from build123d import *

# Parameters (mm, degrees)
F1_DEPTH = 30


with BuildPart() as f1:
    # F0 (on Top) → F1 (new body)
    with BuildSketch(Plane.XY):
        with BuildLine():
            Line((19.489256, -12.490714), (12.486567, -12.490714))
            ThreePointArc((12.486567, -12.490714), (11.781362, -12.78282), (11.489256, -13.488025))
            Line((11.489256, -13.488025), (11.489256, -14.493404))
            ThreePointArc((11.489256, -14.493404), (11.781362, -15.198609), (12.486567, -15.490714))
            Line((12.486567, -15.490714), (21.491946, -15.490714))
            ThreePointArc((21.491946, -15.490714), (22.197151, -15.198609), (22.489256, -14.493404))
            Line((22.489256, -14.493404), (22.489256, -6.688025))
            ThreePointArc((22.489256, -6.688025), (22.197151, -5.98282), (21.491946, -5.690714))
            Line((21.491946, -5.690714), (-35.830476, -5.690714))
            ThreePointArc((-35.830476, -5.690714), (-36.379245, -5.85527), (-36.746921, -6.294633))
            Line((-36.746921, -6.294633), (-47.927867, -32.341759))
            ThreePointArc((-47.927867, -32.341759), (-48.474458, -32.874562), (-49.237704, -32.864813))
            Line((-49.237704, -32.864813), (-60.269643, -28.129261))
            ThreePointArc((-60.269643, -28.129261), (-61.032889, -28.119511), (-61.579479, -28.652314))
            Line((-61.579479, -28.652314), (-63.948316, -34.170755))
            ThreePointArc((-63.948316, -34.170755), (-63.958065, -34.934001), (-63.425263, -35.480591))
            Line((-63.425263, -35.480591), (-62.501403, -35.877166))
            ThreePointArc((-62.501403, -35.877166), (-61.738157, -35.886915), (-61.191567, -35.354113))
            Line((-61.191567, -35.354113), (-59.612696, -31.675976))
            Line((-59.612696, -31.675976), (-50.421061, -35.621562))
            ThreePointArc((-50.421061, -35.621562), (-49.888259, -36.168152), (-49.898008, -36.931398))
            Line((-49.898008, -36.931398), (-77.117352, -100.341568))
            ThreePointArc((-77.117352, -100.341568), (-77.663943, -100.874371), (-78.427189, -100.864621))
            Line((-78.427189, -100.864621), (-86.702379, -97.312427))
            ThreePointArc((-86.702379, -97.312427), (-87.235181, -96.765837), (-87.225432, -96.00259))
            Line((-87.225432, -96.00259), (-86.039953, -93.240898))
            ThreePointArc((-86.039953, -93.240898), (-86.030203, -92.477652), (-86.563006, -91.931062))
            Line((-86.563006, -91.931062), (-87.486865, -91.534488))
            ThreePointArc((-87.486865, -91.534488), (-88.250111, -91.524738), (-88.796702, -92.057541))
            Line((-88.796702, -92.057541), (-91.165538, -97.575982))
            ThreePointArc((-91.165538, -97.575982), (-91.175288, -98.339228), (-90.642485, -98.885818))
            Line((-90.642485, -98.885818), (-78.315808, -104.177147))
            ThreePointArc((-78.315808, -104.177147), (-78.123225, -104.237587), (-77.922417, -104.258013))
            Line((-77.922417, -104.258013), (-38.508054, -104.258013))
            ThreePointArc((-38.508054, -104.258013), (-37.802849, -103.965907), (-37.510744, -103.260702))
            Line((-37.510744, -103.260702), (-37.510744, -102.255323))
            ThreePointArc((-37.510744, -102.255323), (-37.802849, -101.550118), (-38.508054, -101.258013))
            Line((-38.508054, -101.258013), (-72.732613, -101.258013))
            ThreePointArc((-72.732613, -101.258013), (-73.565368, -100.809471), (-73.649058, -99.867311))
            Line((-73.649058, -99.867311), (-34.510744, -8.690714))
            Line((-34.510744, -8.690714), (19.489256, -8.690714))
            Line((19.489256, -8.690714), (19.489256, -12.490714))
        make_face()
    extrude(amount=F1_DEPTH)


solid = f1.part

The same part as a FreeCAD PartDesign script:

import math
import FreeCAD as App
import Part
import Sketcher

doc = App.newDocument("Part")
body = doc.addObject("PartDesign::Body", "Body")

# Sketch on XY plane
sketch1 = body.newObject("Sketcher::SketchObject", "Sketch")
sketch1.AttachmentSupport = (doc.getObject("XY_Plane"), [""])
sketch1.MapMode = "FlatFace"
sketch1.addGeometry([
    Part.LineSegment(App.Vector(19.49, -12.49, 0), App.Vector(12.49, -12.49, 0)),  # 0
    Part.ArcOfCircle(Part.Circle(App.Vector(12.49, -13.49, 0), App.Vector(0, 0, 1), 1), math.radians(90), math.radians(180)),  # 1
    Part.LineSegment(App.Vector(11.49, -13.49, 0), App.Vector(11.49, -14.49, 0)),  # 2
    Part.ArcOfCircle(Part.Circle(App.Vector(12.49, -14.49, 0), App.Vector(0, 0, 1), 1), math.radians(-180), math.radians(-90)),  # 3
    Part.LineSegment(App.Vector(12.49, -15.49, 0), App.Vector(21.49, -15.49, 0)),  # 4
    Part.ArcOfCircle(Part.Circle(App.Vector(21.49, -14.49, 0), App.Vector(0, 0, 1), 1), math.radians(-90), math.radians(0)),  # 5
    Part.LineSegment(App.Vector(22.49, -14.49, 0), App.Vector(22.49, -6.69, 0)),  # 6
    Part.ArcOfCircle(Part.Circle(App.Vector(21.49, -6.69, 0), App.Vector(0, 0, 1), 1), math.radians(0), math.radians(90)),  # 7
    Part.LineSegment(App.Vector(21.49, -5.69, 0), App.Vector(-35.83, -5.69, 0)),  # 8
    Part.ArcOfCircle(Part.Circle(App.Vector(-35.83, -6.69, 0), App.Vector(0, 0, 1), 1), math.radians(90), math.radians(157)),  # 9
    Part.LineSegment(App.Vector(-36.75, -6.29, 0), App.Vector(-47.93, -32.34, 0)),  # 10
    Part.ArcOfCircle(Part.Circle(App.Vector(-48.84, -31.95, 0), App.Vector(0, 0, 1), 1), math.radians(-113), math.radians(-23)),  # 11
    Part.LineSegment(App.Vector(-49.24, -32.86, 0), App.Vector(-60.27, -28.13, 0)),  # 12
    Part.ArcOfCircle(Part.Circle(App.Vector(-60.66, -29.05, 0), App.Vector(0, 0, 1), 1), math.radians(67), math.radians(157)),  # 13
    Part.LineSegment(App.Vector(-61.58, -28.65, 0), App.Vector(-63.95, -34.17, 0)),  # 14
    Part.ArcOfCircle(Part.Circle(App.Vector(-63.03, -34.56, 0), App.Vector(0, 0, 1), 1), math.radians(157), math.radians(247)),  # 15
    Part.LineSegment(App.Vector(-63.43, -35.48, 0), App.Vector(-62.5, -35.88, 0)),  # 16
    Part.ArcOfCircle(Part.Circle(App.Vector(-62.11, -34.96, 0), App.Vector(0, 0, 1), 1), math.radians(-113), math.radians(-23)),  # 17
    Part.LineSegment(App.Vector(-61.19, -35.35, 0), App.Vector(-59.61, -31.68, 0)),  # 18
    Part.LineSegment(App.Vector(-59.61, -31.68, 0), App.Vector(-50.42, -35.62, 0)),  # 19
    Part.ArcOfCircle(Part.Circle(App.Vector(-50.81, -36.54, 0), App.Vector(0, 0, 1), 1), math.radians(-23), math.radians(67)),  # 20
    Part.LineSegment(App.Vector(-49.9, -36.93, 0), App.Vector(-77.12, -100.34, 0)),  # 21
    Part.ArcOfCircle(Part.Circle(App.Vector(-78.03, -99.95, 0), App.Vector(0, 0, 1), 1), math.radians(-113), math.radians(-23)),  # 22
    Part.LineSegment(App.Vector(-78.43, -100.86, 0), App.Vector(-86.7, -97.31, 0)),  # 23
    Part.ArcOfCircle(Part.Circle(App.Vector(-86.31, -96.4, 0), App.Vector(0, 0, 1), 1), math.radians(157), math.radians(247)),  # 24
    Part.LineSegment(App.Vector(-87.23, -96, 0), App.Vector(-86.04, -93.24, 0)),  # 25
    Part.ArcOfCircle(Part.Circle(App.Vector(-86.96, -92.85, 0), App.Vector(0, 0, 1), 1), math.radians(-23), math.radians(67)),  # 26
    Part.LineSegment(App.Vector(-86.56, -91.93, 0), App.Vector(-87.49, -91.53, 0)),  # 27
    Part.ArcOfCircle(Part.Circle(App.Vector(-87.88, -92.45, 0), App.Vector(0, 0, 1), 1), math.radians(67), math.radians(157)),  # 28
    Part.LineSegment(App.Vector(-88.8, -92.06, 0), App.Vector(-91.17, -97.58, 0)),  # 29
    Part.ArcOfCircle(Part.Circle(App.Vector(-90.25, -97.97, 0), App.Vector(0, 0, 1), 1), math.radians(157), math.radians(247)),  # 30
    Part.LineSegment(App.Vector(-90.64, -98.89, 0), App.Vector(-78.32, -104.18, 0)),  # 31
    Part.ArcOfCircle(Part.Circle(App.Vector(-77.92, -103.26, 0), App.Vector(0, 0, 1), 1), math.radians(-113), math.radians(-90)),  # 32
    Part.LineSegment(App.Vector(-77.92, -104.26, 0), App.Vector(-38.51, -104.26, 0)),  # 33
    Part.ArcOfCircle(Part.Circle(App.Vector(-38.51, -103.26, 0), App.Vector(0, 0, 1), 1), math.radians(-90), math.radians(0)),  # 34
    Part.LineSegment(App.Vector(-37.51, -103.26, 0), App.Vector(-37.51, -102.26, 0)),  # 35
    Part.ArcOfCircle(Part.Circle(App.Vector(-38.51, -102.26, 0), App.Vector(0, 0, 1), 1), math.radians(0), math.radians(90)),  # 36
    Part.LineSegment(App.Vector(-38.51, -101.26, 0), App.Vector(-72.73, -101.26, 0)),  # 37
    Part.ArcOfCircle(Part.Circle(App.Vector(-72.73, -100.26, 0), App.Vector(0, 0, 1), 1), math.radians(157), math.radians(270)),  # 38
    Part.LineSegment(App.Vector(-73.65, -99.87, 0), App.Vector(-34.51, -8.69, 0)),  # 39
    Part.LineSegment(App.Vector(-34.51, -8.69, 0), App.Vector(19.49, -8.69, 0)),  # 40
    Part.LineSegment(App.Vector(19.49, -8.69, 0), App.Vector(19.49, -12.49, 0)),  # 41
], False)
sketch1.addConstraint([
    Sketcher.Constraint("Tangent", 0, 2, 1, 1),
    Sketcher.Constraint("Tangent", 1, 2, 2, 1),
    Sketcher.Constraint("Tangent", 2, 2, 3, 1),
    Sketcher.Constraint("Tangent", 3, 2, 4, 1),
    Sketcher.Constraint("Tangent", 4, 2, 5, 1),
    Sketcher.Constraint("Tangent", 5, 2, 6, 1),
    Sketcher.Constraint("Tangent", 6, 2, 7, 1),
    Sketcher.Constraint("Tangent", 7, 2, 8, 1),
    Sketcher.Constraint("Tangent", 8, 2, 9, 1),
    Sketcher.Constraint("Tangent", 9, 2, 10, 1),
    Sketcher.Constraint("Tangent", 10, 2, 11, 2),
    Sketcher.Constraint("Tangent", 11, 1, 12, 1),
    Sketcher.Constraint("Tangent", 12, 2, 13, 1),
    Sketcher.Constraint("Tangent", 13, 2, 14, 1),
    Sketcher.Constraint("Tangent", 14, 2, 15, 1),
    Sketcher.Constraint("Tangent", 15, 2, 16, 1),
    Sketcher.Constraint("Tangent", 16, 2, 17, 1),
    Sketcher.Constraint("Tangent", 17, 2, 18, 1),
    Sketcher.Constraint("Coincident", 18, 2, 19, 1),
    Sketcher.Constraint("Tangent", 19, 2, 20, 2),
    Sketcher.Constraint("Tangent", 20, 1, 21, 1),
    Sketcher.Constraint("Tangent", 21, 2, 22, 2),
    Sketcher.Constraint("Tangent", 22, 1, 23, 1),
    Sketcher.Constraint("Tangent", 23, 2, 24, 2),
    Sketcher.Constraint("Tangent", 24, 1, 25, 1),
    Sketcher.Constraint("Tangent", 25, 2, 26, 1),
    Sketcher.Constraint("Tangent", 26, 2, 27, 1),
    Sketcher.Constraint("Tangent", 27, 2, 28, 1),
    Sketcher.Constraint("Tangent", 28, 2, 29, 1),
    Sketcher.Constraint("Tangent", 29, 2, 30, 1),
    Sketcher.Constraint("Tangent", 30, 2, 31, 1),
    Sketcher.Constraint("Tangent", 31, 2, 32, 1),
    Sketcher.Constraint("Coincident", 32, 2, 33, 1),
    Sketcher.Constraint("Tangent", 33, 2, 34, 1),
    Sketcher.Constraint("Tangent", 34, 2, 35, 1),
    Sketcher.Constraint("Tangent", 35, 2, 36, 1),
    Sketcher.Constraint("Tangent", 36, 2, 37, 1),
    Sketcher.Constraint("Tangent", 37, 2, 38, 2),
    Sketcher.Constraint("Tangent", 38, 1, 39, 1),
    Sketcher.Constraint("Coincident", 39, 2, 40, 1),
    Sketcher.Constraint("Coincident", 40, 2, 41, 1),
    Sketcher.Constraint("Coincident", 41, 2, 0, 1),
    Sketcher.Constraint("Horizontal", 0),
    Sketcher.Constraint("Vertical", 2),
    Sketcher.Constraint("Horizontal", 4),
    Sketcher.Constraint("Vertical", 6),
    Sketcher.Constraint("Horizontal", 8),
    Sketcher.Constraint("Horizontal", 33),
    Sketcher.Constraint("Vertical", 35),
    Sketcher.Constraint("Horizontal", 37),
    Sketcher.Constraint("Horizontal", 40),
    Sketcher.Constraint("Vertical", 41),
    Sketcher.Constraint("Equal", 1, 3),
    Sketcher.Constraint("Equal", 3, 5),
    Sketcher.Constraint("Equal", 5, 7),
    Sketcher.Constraint("Equal", 7, 9),
    Sketcher.Constraint("Equal", 9, 11),
    Sketcher.Constraint("Equal", 7, 13),
    Sketcher.Constraint("Equal", 11, 15),
    Sketcher.Constraint("Equal", 15, 17),
    Sketcher.Constraint("Equal", 17, 20),
    Sketcher.Constraint("Equal", 20, 22),
    Sketcher.Constraint("Equal", 22, 24),
    Sketcher.Constraint("Equal", 22, 26),
    Sketcher.Constraint("Equal", 26, 28),
    Sketcher.Constraint("Equal", 28, 30),
    Sketcher.Constraint("Equal", 30, 34),
    Sketcher.Constraint("Equal", 34, 36),
    Sketcher.Constraint("Equal", 36, 38),
    Sketcher.Constraint("Perpendicular", 10, 12),
    Sketcher.Constraint("Perpendicular", 12, 14),
    Sketcher.Constraint("Perpendicular", 14, 16),
    Sketcher.Constraint("Perpendicular", 16, 18),
    Sketcher.Constraint("Perpendicular", 18, 19),
    Sketcher.Constraint("Perpendicular", 19, 21),
    Sketcher.Constraint("Perpendicular", 21, 23),
    Sketcher.Constraint("Perpendicular", 23, 25),
    Sketcher.Constraint("Perpendicular", 25, 27),
    Sketcher.Constraint("Perpendicular", 27, 29),
    Sketcher.Constraint("Perpendicular", 29, 31),
    Sketcher.Constraint("Perpendicular", 31, 39),
    Sketcher.Constraint("Equal", 2, 35),
    Sketcher.Constraint("Equal", 16, 27),
    Sketcher.Constraint("Equal", 14, 29),
    Sketcher.Constraint("DistanceX", 40, 1, 40, 2, 54.0),
    Sketcher.Constraint("DistanceY", 41, 2, 41, 1, 3.8),
    Sketcher.Constraint("Radius", 3, 0.997311),
    Sketcher.Constraint("Radius", 32, 0.997321),
    Sketcher.Constraint("DistanceX", 0, 2, 0, 1, 7.002689),
    Sketcher.Constraint("DistanceX", 4, 1, 4, 2, 9.005379),
    Sketcher.Constraint("DistanceX", 8, 2, 8, 1, 57.322422),
    Sketcher.Constraint("DistanceX", 37, 2, 37, 1, 34.224559),
    Sketcher.Constraint("DistanceY", 2, 2, 2, 1, 1.005379),
    Sketcher.Constraint("DistanceY", 6, 1, 6, 2, 7.805379),
    Sketcher.Constraint("DistanceY", 25, 2, -1, 1, 93.240898),
    Sketcher.Constraint("DistanceX", 28, 2, -1, 1, 88.796702),
    Sketcher.Constraint("DistanceY", 34, 2, -1, 1, 103.260702),
    Sketcher.Constraint("Distance", 10, 28.345482),
    Sketcher.Constraint("Distance", 12, 12.005379),
    Sketcher.Constraint("Distance", 14, 6.005379),
    Sketcher.Constraint("Distance", 16, 1.00538),
    Sketcher.Constraint("Distance", 18, 4.00269),
    Sketcher.Constraint("Distance", 19, 10.00269),
    Sketcher.Constraint("Distance", 21, 69.005379),
    Sketcher.Constraint("Distance", 23, 9.005379),
    Sketcher.Constraint("Distance", 25, 3.005379),
    Sketcher.Constraint("Distance", 39, 99.22187),
    Sketcher.Constraint("DistanceX", 33, 1, 33, 2, 39.414363),
])
pad1 = body.newObject("PartDesign::Pad", "Pad")
pad1.Profile = sketch1
pad1.Length = 30

doc.recompute()
